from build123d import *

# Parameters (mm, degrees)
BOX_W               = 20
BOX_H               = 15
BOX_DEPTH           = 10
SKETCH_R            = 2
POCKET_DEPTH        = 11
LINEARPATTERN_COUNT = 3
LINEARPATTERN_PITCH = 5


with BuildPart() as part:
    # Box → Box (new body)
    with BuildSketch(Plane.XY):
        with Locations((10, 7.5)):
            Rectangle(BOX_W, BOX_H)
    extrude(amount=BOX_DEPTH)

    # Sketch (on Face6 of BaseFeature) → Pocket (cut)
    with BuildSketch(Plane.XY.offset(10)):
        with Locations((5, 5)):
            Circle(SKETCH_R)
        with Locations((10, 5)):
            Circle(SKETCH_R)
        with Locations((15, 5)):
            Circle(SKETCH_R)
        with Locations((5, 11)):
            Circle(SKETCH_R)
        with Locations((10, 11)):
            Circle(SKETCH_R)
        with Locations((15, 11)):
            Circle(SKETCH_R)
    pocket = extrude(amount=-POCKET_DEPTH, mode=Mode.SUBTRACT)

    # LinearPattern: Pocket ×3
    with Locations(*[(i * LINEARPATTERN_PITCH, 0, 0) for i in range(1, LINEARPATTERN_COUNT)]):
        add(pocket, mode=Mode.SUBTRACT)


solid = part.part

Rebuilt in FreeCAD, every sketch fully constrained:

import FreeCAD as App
import Part
import Sketcher
from FreeCAD import Vector
Q = App.Units.Quantity


def add_polygon(sketch, points):
    """Adds a closed chain of lines whose ends are joined by coincident constraints."""
    first, n = sketch.GeometryCount, len(points)
    for a, b in zip(points, points[1:] + points[:1]):
        sketch.addGeometry(Part.LineSegment(App.Vector(*a, 0), App.Vector(*b, 0)), False)
    for i in range(n):
        sketch.addConstraint(Sketcher.Constraint("Coincident", first + i, 2, first + (i + 1) % n, 1))

doc = App.newDocument("Part")
body = doc.addObject("PartDesign::Body", "Body")

# Sketch on XY plane
sketch1 = body.newObject("Sketcher::SketchObject", "Sketch")
sketch1.AttachmentSupport = (doc.getObject("XY_Plane"), [""])
sketch1.MapMode = "FlatFace"
add_polygon(sketch1, [(0, 15), (0, 0), (20, 0), (20, 15)])  # lines 0-3
sketch1.addConstraint([
    Sketcher.Constraint("Vertical", 0),
    Sketcher.Constraint("Horizontal", 1),
    Sketcher.Constraint("Vertical", 2),
    Sketcher.Constraint("Horizontal", 3),
    Sketcher.Constraint("Coincident", 0, 2, -1, 1),
    Sketcher.Constraint("DistanceX", 1, 1, 1, 2, Q("20 mm")),
    Sketcher.Constraint("DistanceY", 0, 2, 0, 1, Q("15 mm")),
])
pad1 = body.newObject("PartDesign::Pad", "Pad")
pad1.Profile = sketch1
pad1.Length = 10

# Sketch on XY plane
sketch2 = body.newObject("Sketcher::SketchObject", "Sketch001")
sketch2.AttachmentSupport = (doc.getObject("XY_Plane"), [""])
sketch2.MapMode = "FlatFace"
sketch2.AttachmentOffset = App.Placement(Vector(0, 0, 10), App.Rotation())
sketch2.addGeometry([
    Part.Circle(Vector(5, 5, 0), Vector(0, 0, 1), 2),  # 0
    Part.Circle(Vector(10, 5, 0), Vector(0, 0, 1), 2),  # 1
    Part.Circle(Vector(15, 5, 0), Vector(0, 0, 1), 2),  # 2
    Part.Circle(Vector(5, 11, 0), Vector(0, 0, 1), 2),  # 3
    Part.Circle(Vector(10, 11, 0), Vector(0, 0, 1), 2),  # 4
    Part.Circle(Vector(15, 11, 0), Vector(0, 0, 1), 2),  # 5
], False)
sketch2.addConstraint([
    Sketcher.Constraint("Equal", 0, 1),
    Sketcher.Constraint("Equal", 1, 2),
    Sketcher.Constraint("Equal", 2, 3),
    Sketcher.Constraint("Equal", 3, 4),
    Sketcher.Constraint("Equal", 4, 5),
    Sketcher.Constraint("Horizontal", 0, 3, 1, 3),
    Sketcher.Constraint("Horizontal", 1, 3, 2, 3),
    Sketcher.Constraint("Horizontal", 3, 3, 4, 3),
    Sketcher.Constraint("Horizontal", 4, 3, 5, 3),
    Sketcher.Constraint("Vertical", 0, 3, 3, 3),
    Sketcher.Constraint("Vertical", 1, 3, 4, 3),
    Sketcher.Constraint("Vertical", 2, 3, 5, 3),
    Sketcher.Constraint("Diameter", 0, Q("4 mm")),
    Sketcher.Constraint("DistanceX", -1, 1, 0, 3, Q("5 mm")),
    Sketcher.Constraint("DistanceY", -1, 1, 0, 3, Q("5 mm")),
    Sketcher.Constraint("DistanceX", -1, 1, 1, 3, Q("10 mm")),
    Sketcher.Constraint("DistanceX", -1, 1, 2, 3, Q("15 mm")),
    Sketcher.Constraint("DistanceY", -1, 1, 3, 3, Q("11 mm")),
])
pocket1 = body.newObject("PartDesign::Pocket", "Pocket")
pocket1.Profile = sketch2
pocket1.Length = 11
doc.recompute()

linearpattern = body.newObject("PartDesign::LinearPattern", "LinearPattern")
linearpattern.Originals = [pocket1]
linearpattern.Direction = (doc.getObject("X_Axis"), [""])
linearpattern.Mode = "offset"
linearpattern.Offset = 5
linearpattern.Occurrences = 3
body.Tip = linearpattern

doc.recompute()
